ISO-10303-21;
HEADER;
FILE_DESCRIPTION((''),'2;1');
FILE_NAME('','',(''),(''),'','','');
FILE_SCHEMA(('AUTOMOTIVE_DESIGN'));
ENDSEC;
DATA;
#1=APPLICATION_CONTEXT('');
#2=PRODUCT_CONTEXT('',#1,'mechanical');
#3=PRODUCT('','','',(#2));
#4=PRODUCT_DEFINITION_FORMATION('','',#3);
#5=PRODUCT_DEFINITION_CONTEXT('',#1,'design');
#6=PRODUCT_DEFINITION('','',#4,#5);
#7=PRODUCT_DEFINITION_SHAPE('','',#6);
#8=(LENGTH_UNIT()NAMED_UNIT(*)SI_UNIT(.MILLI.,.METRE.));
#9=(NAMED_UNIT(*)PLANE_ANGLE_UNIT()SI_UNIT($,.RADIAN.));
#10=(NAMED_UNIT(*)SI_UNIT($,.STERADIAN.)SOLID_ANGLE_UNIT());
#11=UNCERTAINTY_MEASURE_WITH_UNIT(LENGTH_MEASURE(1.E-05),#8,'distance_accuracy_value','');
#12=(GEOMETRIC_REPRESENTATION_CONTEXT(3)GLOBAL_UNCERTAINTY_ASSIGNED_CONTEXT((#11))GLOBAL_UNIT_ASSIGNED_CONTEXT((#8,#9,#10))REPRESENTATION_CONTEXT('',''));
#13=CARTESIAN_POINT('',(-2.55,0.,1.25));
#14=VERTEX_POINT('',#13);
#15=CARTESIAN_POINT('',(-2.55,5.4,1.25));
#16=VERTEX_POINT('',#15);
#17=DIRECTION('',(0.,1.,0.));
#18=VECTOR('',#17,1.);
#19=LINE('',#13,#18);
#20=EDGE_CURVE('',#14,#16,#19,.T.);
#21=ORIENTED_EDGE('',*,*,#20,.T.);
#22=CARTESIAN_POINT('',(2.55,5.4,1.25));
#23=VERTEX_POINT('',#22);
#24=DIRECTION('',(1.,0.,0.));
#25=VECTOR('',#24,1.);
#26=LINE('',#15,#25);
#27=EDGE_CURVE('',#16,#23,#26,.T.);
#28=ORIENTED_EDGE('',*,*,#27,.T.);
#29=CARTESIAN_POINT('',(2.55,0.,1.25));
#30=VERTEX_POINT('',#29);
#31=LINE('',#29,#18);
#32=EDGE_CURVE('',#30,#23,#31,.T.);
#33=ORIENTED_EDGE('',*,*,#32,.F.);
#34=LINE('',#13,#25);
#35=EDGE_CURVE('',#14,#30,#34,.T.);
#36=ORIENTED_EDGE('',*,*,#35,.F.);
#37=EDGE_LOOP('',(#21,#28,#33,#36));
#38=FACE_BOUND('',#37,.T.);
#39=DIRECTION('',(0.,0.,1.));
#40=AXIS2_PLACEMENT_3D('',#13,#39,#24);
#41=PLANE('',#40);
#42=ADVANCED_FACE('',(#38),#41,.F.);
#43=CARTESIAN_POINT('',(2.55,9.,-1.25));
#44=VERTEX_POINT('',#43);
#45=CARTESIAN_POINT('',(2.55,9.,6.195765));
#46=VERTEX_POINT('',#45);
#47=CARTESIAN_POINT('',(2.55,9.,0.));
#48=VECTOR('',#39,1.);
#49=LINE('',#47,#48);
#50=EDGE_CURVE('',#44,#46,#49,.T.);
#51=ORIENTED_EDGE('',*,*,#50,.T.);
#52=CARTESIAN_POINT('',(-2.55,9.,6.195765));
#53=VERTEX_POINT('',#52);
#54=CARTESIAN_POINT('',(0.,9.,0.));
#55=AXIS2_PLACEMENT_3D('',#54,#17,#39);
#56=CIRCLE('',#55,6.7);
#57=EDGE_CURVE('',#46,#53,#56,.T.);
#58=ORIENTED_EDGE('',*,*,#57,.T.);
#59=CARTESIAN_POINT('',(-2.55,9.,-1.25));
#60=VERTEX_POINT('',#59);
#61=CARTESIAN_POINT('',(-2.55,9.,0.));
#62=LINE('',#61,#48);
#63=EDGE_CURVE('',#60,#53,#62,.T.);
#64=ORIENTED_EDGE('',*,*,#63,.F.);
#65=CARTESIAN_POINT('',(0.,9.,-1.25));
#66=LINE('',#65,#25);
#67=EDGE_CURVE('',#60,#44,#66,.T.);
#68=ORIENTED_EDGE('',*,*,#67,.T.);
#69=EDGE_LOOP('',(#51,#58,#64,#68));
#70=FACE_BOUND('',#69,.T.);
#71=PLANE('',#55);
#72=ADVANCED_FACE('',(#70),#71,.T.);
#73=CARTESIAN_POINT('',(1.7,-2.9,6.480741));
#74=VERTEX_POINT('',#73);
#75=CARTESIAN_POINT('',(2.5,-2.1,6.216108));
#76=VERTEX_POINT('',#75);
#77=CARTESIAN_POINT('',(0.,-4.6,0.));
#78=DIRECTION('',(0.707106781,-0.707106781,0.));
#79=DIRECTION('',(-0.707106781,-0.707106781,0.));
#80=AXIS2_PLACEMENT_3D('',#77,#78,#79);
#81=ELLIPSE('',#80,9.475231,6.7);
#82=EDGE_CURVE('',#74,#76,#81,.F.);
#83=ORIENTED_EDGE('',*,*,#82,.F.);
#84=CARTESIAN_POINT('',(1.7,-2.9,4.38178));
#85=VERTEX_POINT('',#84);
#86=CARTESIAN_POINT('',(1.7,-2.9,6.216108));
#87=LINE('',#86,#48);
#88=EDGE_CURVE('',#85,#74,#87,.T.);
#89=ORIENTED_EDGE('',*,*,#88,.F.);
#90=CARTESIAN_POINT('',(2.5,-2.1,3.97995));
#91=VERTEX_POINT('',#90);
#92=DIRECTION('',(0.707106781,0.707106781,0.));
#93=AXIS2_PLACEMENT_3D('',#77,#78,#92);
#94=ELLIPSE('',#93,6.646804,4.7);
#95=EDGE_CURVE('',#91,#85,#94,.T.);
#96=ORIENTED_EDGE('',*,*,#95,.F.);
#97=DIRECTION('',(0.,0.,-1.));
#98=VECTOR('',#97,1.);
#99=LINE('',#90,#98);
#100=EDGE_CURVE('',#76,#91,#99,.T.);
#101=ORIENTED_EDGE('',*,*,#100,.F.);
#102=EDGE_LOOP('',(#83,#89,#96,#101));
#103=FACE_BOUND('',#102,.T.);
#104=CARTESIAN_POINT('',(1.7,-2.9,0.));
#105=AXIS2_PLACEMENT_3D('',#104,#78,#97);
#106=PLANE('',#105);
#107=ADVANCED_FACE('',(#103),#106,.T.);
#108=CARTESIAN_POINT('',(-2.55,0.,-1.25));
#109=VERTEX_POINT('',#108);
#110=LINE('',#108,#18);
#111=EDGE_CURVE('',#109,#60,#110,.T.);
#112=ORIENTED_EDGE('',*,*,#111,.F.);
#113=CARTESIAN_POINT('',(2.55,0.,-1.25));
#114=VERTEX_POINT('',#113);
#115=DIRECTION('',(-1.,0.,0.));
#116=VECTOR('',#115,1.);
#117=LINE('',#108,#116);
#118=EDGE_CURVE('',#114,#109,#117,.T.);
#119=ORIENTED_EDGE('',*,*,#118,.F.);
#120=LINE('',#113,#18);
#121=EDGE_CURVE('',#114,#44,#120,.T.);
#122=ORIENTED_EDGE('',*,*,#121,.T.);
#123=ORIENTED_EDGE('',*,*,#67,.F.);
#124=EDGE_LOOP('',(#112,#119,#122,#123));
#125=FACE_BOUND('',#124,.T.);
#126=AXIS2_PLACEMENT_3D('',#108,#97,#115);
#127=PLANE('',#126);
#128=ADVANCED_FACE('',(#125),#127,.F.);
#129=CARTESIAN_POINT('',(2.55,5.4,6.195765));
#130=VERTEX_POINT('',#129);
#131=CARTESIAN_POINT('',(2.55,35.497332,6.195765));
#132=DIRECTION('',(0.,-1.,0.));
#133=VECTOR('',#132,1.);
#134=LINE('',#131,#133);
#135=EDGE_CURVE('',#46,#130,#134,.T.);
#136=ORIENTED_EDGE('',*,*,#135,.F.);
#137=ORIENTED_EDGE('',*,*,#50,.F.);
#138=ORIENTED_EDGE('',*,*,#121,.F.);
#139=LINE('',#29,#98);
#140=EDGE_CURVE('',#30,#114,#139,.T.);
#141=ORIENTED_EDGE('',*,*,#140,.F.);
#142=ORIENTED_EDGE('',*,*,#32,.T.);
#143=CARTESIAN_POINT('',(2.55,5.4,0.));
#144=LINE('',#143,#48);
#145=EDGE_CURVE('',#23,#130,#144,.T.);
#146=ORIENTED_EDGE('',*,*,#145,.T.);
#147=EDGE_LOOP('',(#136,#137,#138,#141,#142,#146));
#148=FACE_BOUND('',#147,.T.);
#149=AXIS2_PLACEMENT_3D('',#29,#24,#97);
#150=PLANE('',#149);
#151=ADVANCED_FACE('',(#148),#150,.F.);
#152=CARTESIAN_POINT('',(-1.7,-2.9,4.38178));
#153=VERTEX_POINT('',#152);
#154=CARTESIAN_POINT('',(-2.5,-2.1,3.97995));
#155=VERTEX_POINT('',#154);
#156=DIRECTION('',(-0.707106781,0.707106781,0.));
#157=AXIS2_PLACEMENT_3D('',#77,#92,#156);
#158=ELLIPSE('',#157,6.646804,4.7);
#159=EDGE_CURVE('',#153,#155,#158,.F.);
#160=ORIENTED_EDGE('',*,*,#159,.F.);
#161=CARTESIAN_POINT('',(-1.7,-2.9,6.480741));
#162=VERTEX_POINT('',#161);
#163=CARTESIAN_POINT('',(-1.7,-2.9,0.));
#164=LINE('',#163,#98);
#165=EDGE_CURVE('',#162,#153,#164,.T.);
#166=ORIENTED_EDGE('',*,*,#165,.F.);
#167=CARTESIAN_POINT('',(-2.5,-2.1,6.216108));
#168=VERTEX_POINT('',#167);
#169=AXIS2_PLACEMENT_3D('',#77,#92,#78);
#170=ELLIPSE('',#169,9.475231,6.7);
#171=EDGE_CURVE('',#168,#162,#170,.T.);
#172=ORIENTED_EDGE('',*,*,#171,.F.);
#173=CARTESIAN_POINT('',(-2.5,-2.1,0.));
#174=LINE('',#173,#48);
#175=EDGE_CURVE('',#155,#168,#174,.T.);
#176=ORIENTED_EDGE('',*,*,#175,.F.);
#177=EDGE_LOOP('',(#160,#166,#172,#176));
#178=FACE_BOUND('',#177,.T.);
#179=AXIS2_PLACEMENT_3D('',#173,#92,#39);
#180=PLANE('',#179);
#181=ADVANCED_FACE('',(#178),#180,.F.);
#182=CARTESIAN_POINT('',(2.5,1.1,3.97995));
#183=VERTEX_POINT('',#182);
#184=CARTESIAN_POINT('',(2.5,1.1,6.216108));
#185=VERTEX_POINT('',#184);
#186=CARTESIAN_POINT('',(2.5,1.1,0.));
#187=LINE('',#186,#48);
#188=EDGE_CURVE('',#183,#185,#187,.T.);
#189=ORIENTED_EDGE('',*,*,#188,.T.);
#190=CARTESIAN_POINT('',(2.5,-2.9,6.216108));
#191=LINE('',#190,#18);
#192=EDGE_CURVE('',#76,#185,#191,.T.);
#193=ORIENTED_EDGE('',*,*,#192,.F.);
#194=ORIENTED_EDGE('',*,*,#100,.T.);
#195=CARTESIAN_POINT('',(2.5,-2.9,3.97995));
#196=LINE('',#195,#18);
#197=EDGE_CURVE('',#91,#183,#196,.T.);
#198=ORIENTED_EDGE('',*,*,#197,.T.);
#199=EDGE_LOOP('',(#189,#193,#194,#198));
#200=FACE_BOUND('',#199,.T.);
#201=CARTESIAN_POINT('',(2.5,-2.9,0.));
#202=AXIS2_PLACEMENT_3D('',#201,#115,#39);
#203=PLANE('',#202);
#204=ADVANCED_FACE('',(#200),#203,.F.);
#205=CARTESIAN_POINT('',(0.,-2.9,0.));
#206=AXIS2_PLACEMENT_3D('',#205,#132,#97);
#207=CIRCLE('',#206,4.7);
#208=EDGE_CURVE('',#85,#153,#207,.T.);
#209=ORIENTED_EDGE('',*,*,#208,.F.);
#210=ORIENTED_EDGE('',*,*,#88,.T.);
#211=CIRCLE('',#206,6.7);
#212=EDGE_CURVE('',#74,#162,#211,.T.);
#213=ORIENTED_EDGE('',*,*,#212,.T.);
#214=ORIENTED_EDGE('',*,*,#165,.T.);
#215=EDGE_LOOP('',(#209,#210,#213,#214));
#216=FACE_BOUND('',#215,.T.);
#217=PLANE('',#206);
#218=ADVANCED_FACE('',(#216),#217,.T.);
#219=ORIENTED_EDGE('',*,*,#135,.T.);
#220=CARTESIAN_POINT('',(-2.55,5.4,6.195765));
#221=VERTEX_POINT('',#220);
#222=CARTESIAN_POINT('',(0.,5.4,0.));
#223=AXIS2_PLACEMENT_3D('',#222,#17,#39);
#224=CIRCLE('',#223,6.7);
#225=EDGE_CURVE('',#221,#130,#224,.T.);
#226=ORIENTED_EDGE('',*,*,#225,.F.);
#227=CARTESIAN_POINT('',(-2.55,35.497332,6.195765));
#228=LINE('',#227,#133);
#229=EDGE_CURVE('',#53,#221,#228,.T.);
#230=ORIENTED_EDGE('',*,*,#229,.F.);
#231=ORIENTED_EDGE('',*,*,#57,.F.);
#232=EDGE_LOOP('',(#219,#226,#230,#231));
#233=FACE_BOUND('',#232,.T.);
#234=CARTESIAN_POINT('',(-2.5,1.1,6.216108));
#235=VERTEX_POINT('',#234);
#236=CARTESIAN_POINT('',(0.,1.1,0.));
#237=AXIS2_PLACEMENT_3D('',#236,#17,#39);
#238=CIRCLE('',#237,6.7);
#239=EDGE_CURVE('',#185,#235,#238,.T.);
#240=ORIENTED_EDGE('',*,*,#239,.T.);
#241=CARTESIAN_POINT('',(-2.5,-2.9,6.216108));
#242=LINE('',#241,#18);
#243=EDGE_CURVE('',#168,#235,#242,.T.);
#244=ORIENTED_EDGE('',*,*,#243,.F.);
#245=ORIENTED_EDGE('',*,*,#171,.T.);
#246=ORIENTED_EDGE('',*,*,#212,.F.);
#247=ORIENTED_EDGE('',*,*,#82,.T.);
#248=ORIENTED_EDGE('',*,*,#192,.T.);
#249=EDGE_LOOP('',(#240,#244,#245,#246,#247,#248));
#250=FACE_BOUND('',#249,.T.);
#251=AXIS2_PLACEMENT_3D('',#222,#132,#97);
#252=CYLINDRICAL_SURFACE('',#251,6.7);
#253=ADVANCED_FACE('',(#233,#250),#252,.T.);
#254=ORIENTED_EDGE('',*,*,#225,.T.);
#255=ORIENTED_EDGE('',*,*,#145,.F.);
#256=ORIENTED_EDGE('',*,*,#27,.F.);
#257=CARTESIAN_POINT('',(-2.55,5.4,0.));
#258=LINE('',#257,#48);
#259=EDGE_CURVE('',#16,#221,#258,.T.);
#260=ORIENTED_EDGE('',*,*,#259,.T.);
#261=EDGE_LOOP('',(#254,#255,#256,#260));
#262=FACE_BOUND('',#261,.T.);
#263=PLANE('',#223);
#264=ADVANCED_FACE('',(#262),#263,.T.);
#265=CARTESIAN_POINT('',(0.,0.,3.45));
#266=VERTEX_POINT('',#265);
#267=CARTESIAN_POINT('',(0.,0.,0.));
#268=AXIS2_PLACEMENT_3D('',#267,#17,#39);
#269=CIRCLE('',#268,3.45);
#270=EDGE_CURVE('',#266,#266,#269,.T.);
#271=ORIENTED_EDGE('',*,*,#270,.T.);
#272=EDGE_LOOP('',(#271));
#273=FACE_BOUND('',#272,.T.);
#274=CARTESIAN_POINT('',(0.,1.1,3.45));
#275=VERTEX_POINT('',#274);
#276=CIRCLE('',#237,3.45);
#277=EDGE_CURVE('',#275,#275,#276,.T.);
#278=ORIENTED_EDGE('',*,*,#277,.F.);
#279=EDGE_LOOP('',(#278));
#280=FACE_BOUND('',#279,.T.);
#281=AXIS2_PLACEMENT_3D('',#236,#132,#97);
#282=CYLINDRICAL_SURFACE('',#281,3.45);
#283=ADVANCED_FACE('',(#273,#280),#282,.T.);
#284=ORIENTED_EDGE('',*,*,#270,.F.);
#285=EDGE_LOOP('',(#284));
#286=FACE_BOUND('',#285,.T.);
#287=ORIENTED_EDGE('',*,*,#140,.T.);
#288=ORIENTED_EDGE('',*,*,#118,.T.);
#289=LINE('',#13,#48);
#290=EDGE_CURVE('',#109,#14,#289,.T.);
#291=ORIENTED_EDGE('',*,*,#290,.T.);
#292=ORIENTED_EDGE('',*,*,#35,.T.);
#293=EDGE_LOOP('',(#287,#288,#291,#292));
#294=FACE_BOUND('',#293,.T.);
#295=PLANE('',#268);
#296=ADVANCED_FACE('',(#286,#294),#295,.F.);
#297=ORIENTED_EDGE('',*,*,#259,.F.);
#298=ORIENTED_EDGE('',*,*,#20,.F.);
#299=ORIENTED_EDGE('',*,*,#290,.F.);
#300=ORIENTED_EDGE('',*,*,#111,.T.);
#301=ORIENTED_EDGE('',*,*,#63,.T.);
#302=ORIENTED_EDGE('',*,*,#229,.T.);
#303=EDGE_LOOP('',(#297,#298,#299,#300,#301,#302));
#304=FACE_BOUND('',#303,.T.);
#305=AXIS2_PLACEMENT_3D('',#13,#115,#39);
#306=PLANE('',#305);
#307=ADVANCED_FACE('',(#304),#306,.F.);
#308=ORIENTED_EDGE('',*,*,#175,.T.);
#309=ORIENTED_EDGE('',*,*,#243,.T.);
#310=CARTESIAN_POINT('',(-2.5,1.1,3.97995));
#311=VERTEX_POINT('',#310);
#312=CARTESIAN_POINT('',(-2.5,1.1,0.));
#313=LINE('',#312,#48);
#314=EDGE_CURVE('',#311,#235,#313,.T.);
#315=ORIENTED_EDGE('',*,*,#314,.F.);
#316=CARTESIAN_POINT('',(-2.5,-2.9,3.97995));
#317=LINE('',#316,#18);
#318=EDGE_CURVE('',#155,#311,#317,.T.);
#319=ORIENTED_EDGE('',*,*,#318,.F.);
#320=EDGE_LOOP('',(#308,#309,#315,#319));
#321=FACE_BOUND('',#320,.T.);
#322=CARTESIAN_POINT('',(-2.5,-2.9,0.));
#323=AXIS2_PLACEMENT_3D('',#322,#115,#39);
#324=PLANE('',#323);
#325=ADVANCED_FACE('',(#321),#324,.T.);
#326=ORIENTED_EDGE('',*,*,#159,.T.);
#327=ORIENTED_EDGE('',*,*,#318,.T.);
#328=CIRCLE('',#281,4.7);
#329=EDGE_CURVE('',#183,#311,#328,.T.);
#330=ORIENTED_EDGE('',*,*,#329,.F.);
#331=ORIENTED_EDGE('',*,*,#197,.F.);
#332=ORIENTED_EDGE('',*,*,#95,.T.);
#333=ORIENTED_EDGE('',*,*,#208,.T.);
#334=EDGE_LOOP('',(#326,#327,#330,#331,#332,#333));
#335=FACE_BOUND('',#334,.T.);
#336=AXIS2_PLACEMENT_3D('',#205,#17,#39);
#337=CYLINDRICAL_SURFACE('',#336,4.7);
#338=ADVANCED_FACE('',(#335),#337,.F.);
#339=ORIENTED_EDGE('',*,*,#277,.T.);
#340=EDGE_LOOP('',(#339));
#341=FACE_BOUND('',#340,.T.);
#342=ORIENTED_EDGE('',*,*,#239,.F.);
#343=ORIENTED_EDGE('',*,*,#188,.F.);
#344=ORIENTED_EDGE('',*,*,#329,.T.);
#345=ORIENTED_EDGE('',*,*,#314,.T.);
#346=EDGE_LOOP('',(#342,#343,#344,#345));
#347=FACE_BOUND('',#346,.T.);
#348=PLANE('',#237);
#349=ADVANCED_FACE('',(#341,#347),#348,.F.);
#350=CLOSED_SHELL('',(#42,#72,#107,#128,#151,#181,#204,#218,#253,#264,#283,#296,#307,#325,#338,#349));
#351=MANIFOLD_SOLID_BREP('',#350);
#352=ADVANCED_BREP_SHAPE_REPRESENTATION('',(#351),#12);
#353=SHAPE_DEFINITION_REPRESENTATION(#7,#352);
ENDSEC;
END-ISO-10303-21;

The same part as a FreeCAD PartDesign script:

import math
import FreeCAD as App
import Part
import Sketcher


def edges_at(feature, points):
    """Names of the edges that pass closest to the given points."""
    edges = feature.Shape.Edges
    near = lambda p: min(range(len(edges)), key=lambda i: edges[i].distToShape(Part.Vertex(*p))[0])
    return sorted({f"Edge{near(p) + 1}" for p in points})


def add_polygon(sketch, points):
    """Adds a closed chain of lines whose ends are joined by coincident constraints."""
    first, n = sketch.GeometryCount, len(points)
    for a, b in zip(points, points[1:] + points[:1]):
        sketch.addGeometry(Part.LineSegment(App.Vector(*a, 0), App.Vector(*b, 0)), False)
    for i in range(n):
        sketch.addConstraint(Sketcher.Constraint("Coincident", first + i, 2, first + (i + 1) % n, 1))

doc = App.newDocument("Part")
body = doc.addObject("PartDesign::Body", "Body")

# Sketch on XZ plane
sketch1 = doc.addObject("Sketcher::SketchObject", "Sketch")
body.addObject(sketch1)
sketch1.AttachmentSupport = (doc.XZ_Plane, [""])
sketch1.MapMode = "FlatFace"
sketch1.addGeometry(Part.Circle(App.Vector(0, 0, 0), App.Vector(0, 0, 1), 3.5), False)
sketch1.addConstraint([
    Sketcher.Constraint("Coincident", 0, 3, -1, 1),
    Sketcher.Constraint("Diameter", 0, 6.9),
])
pad1 = doc.addObject("PartDesign::Pad", "Pad")
body.addObject(pad1)
pad1.Profile = sketch1
pad1.Length = 1.1
pad1.Reversed = True

# Sketch on XZ plane
sketch2 = doc.addObject("Sketcher::SketchObject", "Sketch001")
body.addObject(sketch2)
sketch2.AttachmentSupport = (doc.XZ_Plane, [""])
sketch2.MapMode = "FlatFace"
sketch2.AttachmentOffset = App.Placement(App.Vector(0, 0, -1.1), App.Rotation())
sketch2.addGeometry(Part.Circle(App.Vector(0, 0, 0), App.Vector(0, 0, 1), 7), False)
sketch2.addConstraint([
    Sketcher.Constraint("Coincident", 0, 3, -1, 1),
    Sketcher.Constraint("Diameter", 0, 13.4),
])
pad2 = doc.addObject("PartDesign::Pad", "Pad001")
body.addObject(pad2)
pad2.Profile = sketch2
pad2.Length = 4.3
pad2.Reversed = True

# Sketch on XZ plane
sketch3 = doc.addObject("Sketcher::SketchObject", "Sketch002")
body.addObject(sketch3)
sketch3.AttachmentSupport = (doc.XZ_Plane, [""])
sketch3.MapMode = "FlatFace"
sketch3.AttachmentOffset = App.Placement(App.Vector(0, 0, -5.4), App.Rotation())
add_polygon(sketch3, [(-2.5, -1.2), (-2.5, 1.2), (2.5, 1.2), (2.5, -1.2)])  # lines 0-3
sketch3.addConstraint([
    Sketcher.Constraint("Vertical", 0),
    Sketcher.Constraint("Horizontal", 1),
    Sketcher.Constraint("Vertical", 2),
    Sketcher.Constraint("Horizontal", 3),
    Sketcher.Constraint("Symmetric", 0, 2, 2, 2, -1, 1),
    Sketcher.Constraint("DistanceX", 1, 1, 1, 2, 5.1),
    Sketcher.Constraint("DistanceY", 0, 1, 0, 2, 2.5),
])
pocket1 = doc.addObject("PartDesign::Pocket", "Pocket")
body.addObject(pocket1)
pocket1.Profile = sketch3
pocket1.Type = "ThroughAll"
pocket1.Reversed = True

# Sketch on XZ plane
sketch4 = doc.addObject("Sketcher::SketchObject", "Sketch003")
body.addObject(sketch4)
sketch4.AttachmentSupport = (doc.XZ_Plane, [""])
sketch4.MapMode = "FlatFace"
sketch4.AttachmentOffset = App.Placement(App.Vector(0, 0, 2.9), App.Rotation())
sketch4.addGeometry([
    Part.ArcOfCircle(Part.Circle(App.Vector(0, 0, 0), App.Vector(0, 0, 1), 6.7), math.radians(68), math.radians(112)),
    Part.LineSegment(App.Vector(-2.5, 6.2, 0), App.Vector(-2.5, 4, 0)),
    Part.ArcOfCircle(Part.Circle(App.Vector(0, 0, 0), App.Vector(0, 0, 1), 4.7), math.radians(58), math.radians(122)),
    Part.LineSegment(App.Vector(2.5, 4, 0), App.Vector(2.5, 6.2, 0)),
], False)
sketch4.addConstraint([
    Sketcher.Constraint("Coincident", 0, 2, 1, 1),
    Sketcher.Constraint("Coincident", 1, 2, 2, 2),
    Sketcher.Constraint("Coincident", 2, 1, 3, 1),
    Sketcher.Constraint("Coincident", 3, 2, 0, 1),
    Sketcher.Constraint("Vertical", 1),
    Sketcher.Constraint("Vertical", 3),
    Sketcher.Constraint("Coincident", 0, 3, -1, 1),
    Sketcher.Constraint("Coincident", 2, 3, -1, 1),
    Sketcher.Constraint("Horizontal", 1, 2, 2, 1),
    Sketcher.Constraint("Radius", 0, 6.7),
    Sketcher.Constraint("Radius", 2, 4.7),
    Sketcher.Constraint("DistanceX", 1, 2, 2, 1, 5.0),
])
pad3 = doc.addObject("PartDesign::Pad", "Pad002")
body.addObject(pad3)
pad3.Profile = sketch4
pad3.Length = 4
pad3.Reversed = True
doc.recompute()

chamfer = doc.addObject("PartDesign::Chamfer", "Chamfer")
body.addObject(chamfer)
chamfer.Base = (pad3, edges_at(pad3, [(-2.5, -2.9, 5.098), (2.5, -2.9, 5.098)]))
chamfer.Size = 0.8

# Sketch on XZ plane
sketch5 = doc.addObject("Sketcher::SketchObject", "Sketch004")
body.addObject(sketch5)
sketch5.AttachmentSupport = (doc.XZ_Plane, [""])
sketch5.MapMode = "FlatFace"
sketch5.AttachmentOffset = App.Placement(App.Vector(0, 0, -5.4), App.Rotation())
sketch5.addGeometry([
    Part.LineSegment(App.Vector(-3, -1, 0), App.Vector(3, -1, 0)),  # 0
    Part.LineSegment(App.Vector(3, -1, 0), App.Vector(3, 6, 0)),  # 1
    Part.ArcOfCircle(Part.Circle(App.Vector(0, 0, 0), App.Vector(0, 0, 1), 7), math.radians(0), math.radians(68)),  # 2
    Part.ArcOfCircle(Part.Circle(App.Vector(0, 0, 0), App.Vector(0, 0, 1), 7), math.radians(112), math.radians(360)),  # 3
    Part.LineSegment(App.Vector(-3, 6, 0), App.Vector(-3, -1, 0)),  # 4
], False)
sketch5.addConstraint([
    Sketcher.Constraint("Coincident", 0, 2, 1, 1),
    Sketcher.Constraint("Coincident", 1, 2, 2, 2),
    Sketcher.Constraint("Tangent", 2, 1, 3, 2),
    Sketcher.Constraint("Coincident", 3, 1, 4, 1),
    Sketcher.Constraint("Coincident", 4, 2, 0, 1),
    Sketcher.Constraint("Horizontal", 0),
    Sketcher.Constraint("Vertical", 1),
    Sketcher.Constraint("Vertical", 4),
    Sketcher.Constraint("Coincident", 2, 3, -1, 1),
    Sketcher.Constraint("Equal", 2, 3),
    Sketcher.Constraint("PointOnObject", 2, 1, -1),
    Sketcher.Constraint("Horizontal", 1, 2, 3, 1),
    Sketcher.Constraint("Radius", 2, 6.7),
    Sketcher.Constraint("DistanceX", 0, 1, 0, 2, 5.1),
    Sketcher.Constraint("DistanceY", 0, 2, -1, 1, 1.25),
])
pad4 = doc.addObject("PartDesign::Pad", "Pad003")
body.addObject(pad4)
pad4.Profile = sketch5
pad4.Length = 3.6
pad4.Reversed = True

doc.recompute()
